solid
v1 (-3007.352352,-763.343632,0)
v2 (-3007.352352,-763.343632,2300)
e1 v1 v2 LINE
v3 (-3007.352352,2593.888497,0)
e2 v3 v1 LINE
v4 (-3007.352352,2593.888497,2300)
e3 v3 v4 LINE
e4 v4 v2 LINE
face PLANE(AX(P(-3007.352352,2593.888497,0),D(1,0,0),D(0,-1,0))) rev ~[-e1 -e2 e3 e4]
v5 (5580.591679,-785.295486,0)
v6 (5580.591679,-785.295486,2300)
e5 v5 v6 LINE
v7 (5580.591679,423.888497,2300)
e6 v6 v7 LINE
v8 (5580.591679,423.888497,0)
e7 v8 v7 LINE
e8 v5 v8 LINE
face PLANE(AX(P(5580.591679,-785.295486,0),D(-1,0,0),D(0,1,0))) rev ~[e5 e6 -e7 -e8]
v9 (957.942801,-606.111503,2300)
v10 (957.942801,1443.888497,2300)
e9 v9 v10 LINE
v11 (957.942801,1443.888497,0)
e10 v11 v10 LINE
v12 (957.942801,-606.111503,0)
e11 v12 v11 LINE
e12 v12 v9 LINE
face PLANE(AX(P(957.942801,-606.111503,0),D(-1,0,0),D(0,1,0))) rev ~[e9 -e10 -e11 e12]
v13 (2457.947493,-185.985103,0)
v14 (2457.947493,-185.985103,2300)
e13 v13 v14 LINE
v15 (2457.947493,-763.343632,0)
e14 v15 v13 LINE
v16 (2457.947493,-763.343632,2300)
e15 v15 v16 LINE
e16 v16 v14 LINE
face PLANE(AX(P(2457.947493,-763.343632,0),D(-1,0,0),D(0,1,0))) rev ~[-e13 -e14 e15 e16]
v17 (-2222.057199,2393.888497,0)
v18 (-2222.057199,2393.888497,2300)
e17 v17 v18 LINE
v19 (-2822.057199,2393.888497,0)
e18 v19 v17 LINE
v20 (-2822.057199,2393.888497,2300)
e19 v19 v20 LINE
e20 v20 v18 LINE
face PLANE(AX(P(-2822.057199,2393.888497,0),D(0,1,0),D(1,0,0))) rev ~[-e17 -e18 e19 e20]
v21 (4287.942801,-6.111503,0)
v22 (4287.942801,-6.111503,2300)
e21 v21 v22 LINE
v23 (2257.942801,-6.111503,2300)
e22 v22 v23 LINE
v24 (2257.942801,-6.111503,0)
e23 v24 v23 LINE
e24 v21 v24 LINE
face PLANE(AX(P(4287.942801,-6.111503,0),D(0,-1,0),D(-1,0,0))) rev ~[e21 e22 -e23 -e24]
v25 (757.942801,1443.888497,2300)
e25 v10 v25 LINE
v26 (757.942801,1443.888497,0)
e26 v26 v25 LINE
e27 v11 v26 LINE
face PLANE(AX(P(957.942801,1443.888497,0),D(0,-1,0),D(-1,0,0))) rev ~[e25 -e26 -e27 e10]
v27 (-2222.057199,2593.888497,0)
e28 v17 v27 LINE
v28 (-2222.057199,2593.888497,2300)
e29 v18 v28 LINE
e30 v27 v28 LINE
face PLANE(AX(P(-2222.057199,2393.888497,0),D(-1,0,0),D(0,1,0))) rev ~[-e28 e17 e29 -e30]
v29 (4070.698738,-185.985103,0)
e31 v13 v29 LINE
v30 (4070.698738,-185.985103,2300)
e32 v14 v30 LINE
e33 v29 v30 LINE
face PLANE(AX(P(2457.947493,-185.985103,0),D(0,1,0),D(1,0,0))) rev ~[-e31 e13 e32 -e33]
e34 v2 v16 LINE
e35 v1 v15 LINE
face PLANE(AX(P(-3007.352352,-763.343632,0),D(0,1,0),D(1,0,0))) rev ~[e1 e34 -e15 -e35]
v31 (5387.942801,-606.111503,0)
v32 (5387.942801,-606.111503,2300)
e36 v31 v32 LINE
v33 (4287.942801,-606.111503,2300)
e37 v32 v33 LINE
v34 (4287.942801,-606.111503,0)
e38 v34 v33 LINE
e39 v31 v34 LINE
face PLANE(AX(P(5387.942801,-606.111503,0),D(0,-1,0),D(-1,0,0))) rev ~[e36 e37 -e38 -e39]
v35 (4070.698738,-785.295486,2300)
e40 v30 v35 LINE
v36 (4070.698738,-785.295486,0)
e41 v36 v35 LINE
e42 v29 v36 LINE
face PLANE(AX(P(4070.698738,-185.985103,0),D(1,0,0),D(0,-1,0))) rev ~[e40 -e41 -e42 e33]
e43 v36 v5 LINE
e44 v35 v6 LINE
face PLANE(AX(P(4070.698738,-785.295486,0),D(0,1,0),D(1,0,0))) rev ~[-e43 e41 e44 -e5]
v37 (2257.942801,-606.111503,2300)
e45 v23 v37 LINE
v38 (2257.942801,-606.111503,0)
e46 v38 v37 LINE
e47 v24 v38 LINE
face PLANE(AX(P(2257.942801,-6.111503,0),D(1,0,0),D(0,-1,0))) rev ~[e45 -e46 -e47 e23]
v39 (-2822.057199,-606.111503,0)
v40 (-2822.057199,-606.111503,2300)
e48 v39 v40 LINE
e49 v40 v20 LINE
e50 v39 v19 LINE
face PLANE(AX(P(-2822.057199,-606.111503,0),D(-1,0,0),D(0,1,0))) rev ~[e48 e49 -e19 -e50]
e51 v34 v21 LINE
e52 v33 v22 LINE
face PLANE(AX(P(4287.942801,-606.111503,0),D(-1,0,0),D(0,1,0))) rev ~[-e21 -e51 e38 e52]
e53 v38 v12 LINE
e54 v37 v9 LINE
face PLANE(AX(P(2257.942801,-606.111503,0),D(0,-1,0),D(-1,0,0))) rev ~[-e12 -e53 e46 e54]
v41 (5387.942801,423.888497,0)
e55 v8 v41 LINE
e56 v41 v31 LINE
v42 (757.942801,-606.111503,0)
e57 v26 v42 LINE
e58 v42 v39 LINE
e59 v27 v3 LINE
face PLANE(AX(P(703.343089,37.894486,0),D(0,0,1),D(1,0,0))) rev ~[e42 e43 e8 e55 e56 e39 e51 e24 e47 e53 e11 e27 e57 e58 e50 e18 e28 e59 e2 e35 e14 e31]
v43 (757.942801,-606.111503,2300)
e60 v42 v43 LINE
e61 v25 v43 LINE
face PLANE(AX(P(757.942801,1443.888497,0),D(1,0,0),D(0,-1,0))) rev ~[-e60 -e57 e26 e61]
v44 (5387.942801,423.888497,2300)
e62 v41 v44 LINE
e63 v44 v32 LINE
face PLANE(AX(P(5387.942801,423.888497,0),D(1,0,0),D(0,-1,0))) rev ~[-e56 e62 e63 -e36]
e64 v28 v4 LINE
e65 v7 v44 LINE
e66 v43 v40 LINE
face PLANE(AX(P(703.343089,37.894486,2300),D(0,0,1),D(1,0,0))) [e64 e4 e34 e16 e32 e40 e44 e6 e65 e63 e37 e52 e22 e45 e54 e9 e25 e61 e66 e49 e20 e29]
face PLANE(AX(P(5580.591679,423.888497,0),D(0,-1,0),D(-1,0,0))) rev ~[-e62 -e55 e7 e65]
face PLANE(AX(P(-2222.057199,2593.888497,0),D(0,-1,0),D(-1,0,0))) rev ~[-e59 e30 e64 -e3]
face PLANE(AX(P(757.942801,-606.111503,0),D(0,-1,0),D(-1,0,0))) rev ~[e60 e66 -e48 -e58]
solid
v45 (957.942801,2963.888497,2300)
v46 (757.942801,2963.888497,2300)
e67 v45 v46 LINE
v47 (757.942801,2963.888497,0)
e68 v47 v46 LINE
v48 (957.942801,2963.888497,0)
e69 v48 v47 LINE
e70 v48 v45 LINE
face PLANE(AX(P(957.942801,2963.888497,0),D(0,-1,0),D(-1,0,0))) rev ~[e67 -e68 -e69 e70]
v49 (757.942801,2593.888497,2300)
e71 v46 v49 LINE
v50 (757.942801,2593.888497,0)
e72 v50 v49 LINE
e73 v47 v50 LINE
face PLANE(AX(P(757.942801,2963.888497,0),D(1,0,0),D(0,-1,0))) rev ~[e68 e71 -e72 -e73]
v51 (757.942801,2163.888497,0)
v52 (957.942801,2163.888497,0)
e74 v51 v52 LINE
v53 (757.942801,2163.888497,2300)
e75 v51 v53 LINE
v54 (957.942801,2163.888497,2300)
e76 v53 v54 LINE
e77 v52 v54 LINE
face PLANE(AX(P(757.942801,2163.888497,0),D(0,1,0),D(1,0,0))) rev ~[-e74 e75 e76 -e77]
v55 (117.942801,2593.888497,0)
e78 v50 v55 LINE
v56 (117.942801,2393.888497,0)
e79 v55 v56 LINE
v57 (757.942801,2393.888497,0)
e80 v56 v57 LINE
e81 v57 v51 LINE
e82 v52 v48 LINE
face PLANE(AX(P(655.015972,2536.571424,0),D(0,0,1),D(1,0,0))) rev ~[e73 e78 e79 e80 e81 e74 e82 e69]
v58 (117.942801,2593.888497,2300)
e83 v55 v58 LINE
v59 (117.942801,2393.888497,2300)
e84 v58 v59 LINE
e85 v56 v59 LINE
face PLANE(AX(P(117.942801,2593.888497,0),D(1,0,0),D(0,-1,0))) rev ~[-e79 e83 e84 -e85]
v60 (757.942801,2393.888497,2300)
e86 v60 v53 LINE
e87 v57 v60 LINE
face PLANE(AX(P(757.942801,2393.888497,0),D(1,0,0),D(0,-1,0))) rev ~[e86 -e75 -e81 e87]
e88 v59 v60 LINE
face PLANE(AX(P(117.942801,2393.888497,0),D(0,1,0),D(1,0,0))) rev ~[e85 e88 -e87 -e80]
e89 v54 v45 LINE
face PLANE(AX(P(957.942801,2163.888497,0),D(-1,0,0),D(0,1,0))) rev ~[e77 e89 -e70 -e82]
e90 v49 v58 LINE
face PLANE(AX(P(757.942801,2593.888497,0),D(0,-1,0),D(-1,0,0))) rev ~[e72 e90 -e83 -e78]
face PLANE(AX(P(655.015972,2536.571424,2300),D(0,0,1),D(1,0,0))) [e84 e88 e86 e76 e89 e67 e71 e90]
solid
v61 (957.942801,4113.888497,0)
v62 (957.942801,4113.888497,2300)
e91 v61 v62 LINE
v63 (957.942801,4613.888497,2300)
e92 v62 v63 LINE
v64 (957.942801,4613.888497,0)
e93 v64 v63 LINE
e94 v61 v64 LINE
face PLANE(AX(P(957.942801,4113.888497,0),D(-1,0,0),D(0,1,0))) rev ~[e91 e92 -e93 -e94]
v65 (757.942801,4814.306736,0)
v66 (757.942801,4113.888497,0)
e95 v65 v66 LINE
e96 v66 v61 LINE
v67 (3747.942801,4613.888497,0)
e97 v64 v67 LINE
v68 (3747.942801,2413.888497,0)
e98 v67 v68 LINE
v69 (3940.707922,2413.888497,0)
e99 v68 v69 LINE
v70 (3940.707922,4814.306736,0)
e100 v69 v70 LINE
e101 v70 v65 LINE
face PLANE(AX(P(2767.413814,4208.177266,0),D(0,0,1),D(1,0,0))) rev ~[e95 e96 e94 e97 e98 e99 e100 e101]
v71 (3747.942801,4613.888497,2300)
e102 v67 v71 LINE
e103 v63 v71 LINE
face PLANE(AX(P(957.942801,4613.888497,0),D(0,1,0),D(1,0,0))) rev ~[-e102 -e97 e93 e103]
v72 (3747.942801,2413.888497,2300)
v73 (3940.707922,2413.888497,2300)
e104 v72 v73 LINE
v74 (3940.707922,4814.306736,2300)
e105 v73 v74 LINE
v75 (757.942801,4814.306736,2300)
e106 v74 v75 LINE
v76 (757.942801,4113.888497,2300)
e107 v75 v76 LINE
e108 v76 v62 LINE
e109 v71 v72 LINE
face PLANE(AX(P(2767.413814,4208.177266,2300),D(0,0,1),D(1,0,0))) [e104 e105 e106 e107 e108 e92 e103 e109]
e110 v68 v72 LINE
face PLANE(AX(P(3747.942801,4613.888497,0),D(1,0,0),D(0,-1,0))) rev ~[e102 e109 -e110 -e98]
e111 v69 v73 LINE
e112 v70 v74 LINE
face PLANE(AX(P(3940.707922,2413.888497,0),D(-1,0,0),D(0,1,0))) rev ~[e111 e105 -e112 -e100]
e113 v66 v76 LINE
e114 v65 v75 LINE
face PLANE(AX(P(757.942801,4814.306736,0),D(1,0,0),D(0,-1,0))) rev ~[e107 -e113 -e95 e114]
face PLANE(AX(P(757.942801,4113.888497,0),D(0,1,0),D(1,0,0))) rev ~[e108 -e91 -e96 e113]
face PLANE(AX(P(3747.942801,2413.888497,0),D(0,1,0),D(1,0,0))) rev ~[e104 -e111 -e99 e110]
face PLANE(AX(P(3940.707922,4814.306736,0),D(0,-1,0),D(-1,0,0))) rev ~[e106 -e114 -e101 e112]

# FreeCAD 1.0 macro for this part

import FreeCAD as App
import Part
import Sketcher

V = App.Vector
Q = App.Units.Quantity

doc = App.newDocument("Part")
body = doc.addObject("PartDesign::Body", "Body")
body.AllowCompound = True

sketch1 = doc.addObject("Sketcher::SketchObject", "Sketch")
body.addObject(sketch1)
sketch1.AttachmentSupport = (doc.XY_Plane, [""])
sketch1.MapMode = "FlatFace"
sketch1.addGeometry([
    Part.LineSegment(V(-2222, 2394, 0), V(-2222, 2594, 0)),
    Part.LineSegment(V(-2222, 2594, 0), V(-3007, 2594, 0)),
    Part.LineSegment(V(-3007, 2594, 0), V(-3007, -763, 0)),
    Part.LineSegment(V(-3007, -763, 0), V(2458, -763, 0)),
    Part.LineSegment(V(2458, -763, 0), V(2458, -186, 0)),
    Part.LineSegment(V(2458, -186, 0), V(4071, -186, 0)),
    Part.LineSegment(V(4071, -186, 0), V(4071, -785, 0)),
    Part.LineSegment(V(4071, -785, 0), V(5581, -785, 0)),
    Part.LineSegment(V(5581, -785, 0), V(5581, 424, 0)),
    Part.LineSegment(V(5581, 424, 0), V(5388, 424, 0)),
    Part.LineSegment(V(5388, 424, 0), V(5388, -606, 0)),
    Part.LineSegment(V(5388, -606, 0), V(4288, -606, 0)),
    Part.LineSegment(V(4288, -606, 0), V(4288, -6, 0)),
    Part.LineSegment(V(4288, -6, 0), V(2258, -6, 0)),
    Part.LineSegment(V(2258, -6, 0), V(2258, -606, 0)),
    Part.LineSegment(V(2258, -606, 0), V(958, -606, 0)),
    Part.LineSegment(V(958, -606, 0), V(958, 1444, 0)),
    Part.LineSegment(V(958, 1444, 0), V(758, 1444, 0)),
    Part.LineSegment(V(758, 1444, 0), V(758, -606, 0)),
    Part.LineSegment(V(758, -606, 0), V(-2822, -606, 0)),
    Part.LineSegment(V(-2822, -606, 0), V(-2822, 2394, 0)),
    Part.LineSegment(V(-2822, 2394, 0), V(-2222, 2394, 0)),
    Part.LineSegment(V(958, 2964, 0), V(758, 2964, 0)),
    Part.LineSegment(V(758, 2964, 0), V(758, 2594, 0)),
    Part.LineSegment(V(758, 2594, 0), V(118, 2594, 0)),
    Part.LineSegment(V(118, 2594, 0), V(118, 2394, 0)),
    Part.LineSegment(V(118, 2394, 0), V(758, 2394, 0)),
    Part.LineSegment(V(758, 2394, 0), V(758, 2164, 0)),
    Part.LineSegment(V(758, 2164, 0), V(958, 2164, 0)),
    Part.LineSegment(V(958, 2164, 0), V(958, 2964, 0)),
    Part.LineSegment(V(3748, 4614, 0), V(3748, 2414, 0)),
    Part.LineSegment(V(3748, 2414, 0), V(3941, 2414, 0)),
    Part.LineSegment(V(3941, 2414, 0), V(3941, 4814, 0)),
    Part.LineSegment(V(3941, 4814, 0), V(758, 4814, 0)),
    Part.LineSegment(V(758, 4814, 0), V(758, 4114, 0)),
    Part.LineSegment(V(758, 4114, 0), V(958, 4114, 0)),
    Part.LineSegment(V(958, 4114, 0), V(958, 4614, 0)),
    Part.LineSegment(V(958, 4614, 0), V(3748, 4614, 0)),
], False)
sketch1.addConstraint([
    Sketcher.Constraint("Coincident", 0, 2, 1, 1),
    Sketcher.Constraint("Coincident", 1, 2, 2, 1),
    Sketcher.Constraint("Coincident", 2, 2, 3, 1),
    Sketcher.Constraint("Coincident", 3, 2, 4, 1),
    Sketcher.Constraint("Coincident", 4, 2, 5, 1),
    Sketcher.Constraint("Coincident", 5, 2, 6, 1),
    Sketcher.Constraint("Coincident", 6, 2, 7, 1),
    Sketcher.Constraint("Coincident", 7, 2, 8, 1),
    Sketcher.Constraint("Coincident", 8, 2, 9, 1),
    Sketcher.Constraint("Coincident", 9, 2, 10, 1),
    Sketcher.Constraint("Coincident", 10, 2, 11, 1),
    Sketcher.Constraint("Coincident", 11, 2, 12, 1),
    Sketcher.Constraint("Coincident", 12, 2, 13, 1),
    Sketcher.Constraint("Coincident", 13, 2, 14, 1),
    Sketcher.Constraint("Coincident", 14, 2, 15, 1),
    Sketcher.Constraint("Coincident", 15, 2, 16, 1),
    Sketcher.Constraint("Coincident", 16, 2, 17, 1),
    Sketcher.Constraint("Coincident", 17, 2, 18, 1),
    Sketcher.Constraint("Coincident", 18, 2, 19, 1),
    Sketcher.Constraint("Coincident", 19, 2, 20, 1),
    Sketcher.Constraint("Coincident", 20, 2, 21, 1),
    Sketcher.Constraint("Coincident", 21, 2, 0, 1),
    Sketcher.Constraint("Coincident", 22, 2, 23, 1),
    Sketcher.Constraint("Coincident", 23, 2, 24, 1),
    Sketcher.Constraint("Coincident", 24, 2, 25, 1),
    Sketcher.Constraint("Coincident", 25, 2, 26, 1),
    Sketcher.Constraint("Coincident", 26, 2, 27, 1),
    Sketcher.Constraint("Coincident", 27, 2, 28, 1),
    Sketcher.Constraint("Coincident", 28, 2, 29, 1),
    Sketcher.Constraint("Coincident", 29, 2, 22, 1),
    Sketcher.Constraint("Coincident", 30, 2, 31, 1),
    Sketcher.Constraint("Coincident", 31, 2, 32, 1),
    Sketcher.Constraint("Coincident", 32, 2, 33, 1),
    Sketcher.Constraint("Coincident", 33, 2, 34, 1),
    Sketcher.Constraint("Coincident", 34, 2, 35, 1),
    Sketcher.Constraint("Coincident", 35, 2, 36, 1),
    Sketcher.Constraint("Coincident", 36, 2, 37, 1),
    Sketcher.Constraint("Coincident", 37, 2, 30, 1),
    Sketcher.Constraint("Vertical", 0),
    Sketcher.Constraint("Horizontal", 1),
    Sketcher.Constraint("Vertical", 2),
    Sketcher.Constraint("Horizontal", 3),
    Sketcher.Constraint("Vertical", 4),
    Sketcher.Constraint("Horizontal", 5),
    Sketcher.Constraint("Vertical", 6),
    Sketcher.Constraint("Horizontal", 7),
    Sketcher.Constraint("Vertical", 8),
    Sketcher.Constraint("Horizontal", 9),
    Sketcher.Constraint("Vertical", 10),
    Sketcher.Constraint("Horizontal", 11),
    Sketcher.Constraint("Vertical", 12),
    Sketcher.Constraint("Horizontal", 13),
    Sketcher.Constraint("Vertical", 14),
    Sketcher.Constraint("Horizontal", 15),
    Sketcher.Constraint("Vertical", 16),
    Sketcher.Constraint("Horizontal", 17),
    Sketcher.Constraint("Vertical", 18),
    Sketcher.Constraint("Horizontal", 19),
    Sketcher.Constraint("Vertical", 20),
    Sketcher.Constraint("Horizontal", 21),
    Sketcher.Constraint("Horizontal", 22),
    Sketcher.Constraint("Vertical", 23),
    Sketcher.Constraint("Horizontal", 24),
    Sketcher.Constraint("Vertical", 25),
    Sketcher.Constraint("Horizontal", 26),
    Sketcher.Constraint("Vertical", 27),
    Sketcher.Constraint("Horizontal", 28),
    Sketcher.Constraint("Vertical", 29),
    Sketcher.Constraint("Vertical", 30),
    Sketcher.Constraint("Horizontal", 31),
    Sketcher.Constraint("Vertical", 32),
    Sketcher.Constraint("Horizontal", 33),
    Sketcher.Constraint("Vertical", 34),
    Sketcher.Constraint("Horizontal", 35),
    Sketcher.Constraint("Vertical", 36),
    Sketcher.Constraint("Horizontal", 37),
    Sketcher.Constraint("Horizontal", 11, 2, 14, 2),
    Sketcher.Constraint("Horizontal", 15, 2, 18, 2),
    Sketcher.Constraint("Horizontal", 1, 2, 23, 2),
    Sketcher.Constraint("Horizontal", 21, 2, 25, 2),
    Sketcher.Constraint("Vertical", 18, 2, 22, 2),
    Sketcher.Constraint("Vertical", 23, 2, 26, 2),
    Sketcher.Constraint("Vertical", 16, 2, 28, 2),
    Sketcher.Constraint("Vertical", 27, 2, 33, 2),
    Sketcher.Constraint("Vertical", 29, 2, 35, 2),
    Sketcher.Constraint("Equal", 35, 0),
    Sketcher.Constraint("Equal", 21, 12),
    Sketcher.Constraint("DistanceX", 11, 2, 11, 1, Q("1100 mm")),
    Sketcher.Constraint("DistanceX", 13, 2, 13, 1, Q("2030 mm")),
    Sketcher.Constraint("DistanceX", 15, 2, 15, 1, Q("1300 mm")),
    Sketcher.Constraint("DistanceX", 17, 2, 17, 1, Q("200 mm")),
    Sketcher.Constraint("DistanceX", 19, 2, 19, 1, Q("3580 mm")),
    Sketcher.Constraint("DistanceX", 21, 1, 21, 2, Q("600 mm")),
    Sketcher.Constraint("DistanceX", 24, 2, 24, 1, Q("640 mm")),
    Sketcher.Constraint("DistanceX", 37, 1, 37, 2, Q("2790 mm")),
    Sketcher.Constraint("DistanceY", 10, 2, 10, 1, Q("1030 mm")),
    Sketcher.Constraint("DistanceY", 16, 1, 16, 2, Q("2050 mm")),
    Sketcher.Constraint("DistanceY", 20, 1, 20, 2, Q("3000 mm")),
    Sketcher.Constraint("DistanceY", 23, 2, 23, 1, Q("370 mm")),
    Sketcher.Constraint("DistanceY", 27, 2, 27, 1, Q("230 mm")),
    Sketcher.Constraint("DistanceY", 30, 2, 30, 1, Q("2200 mm")),
    Sketcher.Constraint("DistanceY", 36, 1, 36, 2, Q("500 mm")),
    Sketcher.Constraint("DistanceY", 12, 2, 30, 2, Q("2420 mm")),
    Sketcher.Constraint("DistanceX", 7, 1, 7, 2, Q("1509.892941 mm")),
    Sketcher.Constraint("DistanceX", 31, 1, 31, 2, Q("192.765121 mm")),
    Sketcher.Constraint("DistanceY", 2, 2, 2, 1, Q("3357.232129 mm")),
    Sketcher.Constraint("DistanceY", 4, 1, 4, 2, Q("577.358529 mm")),
    Sketcher.Constraint("DistanceY", 32, 1, 32, 2, Q("2400.418239 mm")),
    Sketcher.Constraint("DistanceX", 0, 2, -1, 1, Q("2222.057199 mm")),
    Sketcher.Constraint("DistanceX", 1, 2, 1, 1, Q("785.295153 mm")),
    Sketcher.Constraint("DistanceX", 3, 1, 3, 2, Q("5465.299845 mm")),
    Sketcher.Constraint("DistanceX", 5, 1, 5, 2, Q("1612.751245 mm")),
    Sketcher.Constraint("DistanceY", 6, 2, 6, 1, Q("599.310383 mm")),
    Sketcher.Constraint("DistanceY", 2, 2, -1, 1, Q("763.343632 mm")),
])
pad1 = doc.addObject("PartDesign::Pad", "Pad")
body.addObject(pad1)
pad1.Profile = sketch1
pad1.Length = 2300

doc.recompute()
